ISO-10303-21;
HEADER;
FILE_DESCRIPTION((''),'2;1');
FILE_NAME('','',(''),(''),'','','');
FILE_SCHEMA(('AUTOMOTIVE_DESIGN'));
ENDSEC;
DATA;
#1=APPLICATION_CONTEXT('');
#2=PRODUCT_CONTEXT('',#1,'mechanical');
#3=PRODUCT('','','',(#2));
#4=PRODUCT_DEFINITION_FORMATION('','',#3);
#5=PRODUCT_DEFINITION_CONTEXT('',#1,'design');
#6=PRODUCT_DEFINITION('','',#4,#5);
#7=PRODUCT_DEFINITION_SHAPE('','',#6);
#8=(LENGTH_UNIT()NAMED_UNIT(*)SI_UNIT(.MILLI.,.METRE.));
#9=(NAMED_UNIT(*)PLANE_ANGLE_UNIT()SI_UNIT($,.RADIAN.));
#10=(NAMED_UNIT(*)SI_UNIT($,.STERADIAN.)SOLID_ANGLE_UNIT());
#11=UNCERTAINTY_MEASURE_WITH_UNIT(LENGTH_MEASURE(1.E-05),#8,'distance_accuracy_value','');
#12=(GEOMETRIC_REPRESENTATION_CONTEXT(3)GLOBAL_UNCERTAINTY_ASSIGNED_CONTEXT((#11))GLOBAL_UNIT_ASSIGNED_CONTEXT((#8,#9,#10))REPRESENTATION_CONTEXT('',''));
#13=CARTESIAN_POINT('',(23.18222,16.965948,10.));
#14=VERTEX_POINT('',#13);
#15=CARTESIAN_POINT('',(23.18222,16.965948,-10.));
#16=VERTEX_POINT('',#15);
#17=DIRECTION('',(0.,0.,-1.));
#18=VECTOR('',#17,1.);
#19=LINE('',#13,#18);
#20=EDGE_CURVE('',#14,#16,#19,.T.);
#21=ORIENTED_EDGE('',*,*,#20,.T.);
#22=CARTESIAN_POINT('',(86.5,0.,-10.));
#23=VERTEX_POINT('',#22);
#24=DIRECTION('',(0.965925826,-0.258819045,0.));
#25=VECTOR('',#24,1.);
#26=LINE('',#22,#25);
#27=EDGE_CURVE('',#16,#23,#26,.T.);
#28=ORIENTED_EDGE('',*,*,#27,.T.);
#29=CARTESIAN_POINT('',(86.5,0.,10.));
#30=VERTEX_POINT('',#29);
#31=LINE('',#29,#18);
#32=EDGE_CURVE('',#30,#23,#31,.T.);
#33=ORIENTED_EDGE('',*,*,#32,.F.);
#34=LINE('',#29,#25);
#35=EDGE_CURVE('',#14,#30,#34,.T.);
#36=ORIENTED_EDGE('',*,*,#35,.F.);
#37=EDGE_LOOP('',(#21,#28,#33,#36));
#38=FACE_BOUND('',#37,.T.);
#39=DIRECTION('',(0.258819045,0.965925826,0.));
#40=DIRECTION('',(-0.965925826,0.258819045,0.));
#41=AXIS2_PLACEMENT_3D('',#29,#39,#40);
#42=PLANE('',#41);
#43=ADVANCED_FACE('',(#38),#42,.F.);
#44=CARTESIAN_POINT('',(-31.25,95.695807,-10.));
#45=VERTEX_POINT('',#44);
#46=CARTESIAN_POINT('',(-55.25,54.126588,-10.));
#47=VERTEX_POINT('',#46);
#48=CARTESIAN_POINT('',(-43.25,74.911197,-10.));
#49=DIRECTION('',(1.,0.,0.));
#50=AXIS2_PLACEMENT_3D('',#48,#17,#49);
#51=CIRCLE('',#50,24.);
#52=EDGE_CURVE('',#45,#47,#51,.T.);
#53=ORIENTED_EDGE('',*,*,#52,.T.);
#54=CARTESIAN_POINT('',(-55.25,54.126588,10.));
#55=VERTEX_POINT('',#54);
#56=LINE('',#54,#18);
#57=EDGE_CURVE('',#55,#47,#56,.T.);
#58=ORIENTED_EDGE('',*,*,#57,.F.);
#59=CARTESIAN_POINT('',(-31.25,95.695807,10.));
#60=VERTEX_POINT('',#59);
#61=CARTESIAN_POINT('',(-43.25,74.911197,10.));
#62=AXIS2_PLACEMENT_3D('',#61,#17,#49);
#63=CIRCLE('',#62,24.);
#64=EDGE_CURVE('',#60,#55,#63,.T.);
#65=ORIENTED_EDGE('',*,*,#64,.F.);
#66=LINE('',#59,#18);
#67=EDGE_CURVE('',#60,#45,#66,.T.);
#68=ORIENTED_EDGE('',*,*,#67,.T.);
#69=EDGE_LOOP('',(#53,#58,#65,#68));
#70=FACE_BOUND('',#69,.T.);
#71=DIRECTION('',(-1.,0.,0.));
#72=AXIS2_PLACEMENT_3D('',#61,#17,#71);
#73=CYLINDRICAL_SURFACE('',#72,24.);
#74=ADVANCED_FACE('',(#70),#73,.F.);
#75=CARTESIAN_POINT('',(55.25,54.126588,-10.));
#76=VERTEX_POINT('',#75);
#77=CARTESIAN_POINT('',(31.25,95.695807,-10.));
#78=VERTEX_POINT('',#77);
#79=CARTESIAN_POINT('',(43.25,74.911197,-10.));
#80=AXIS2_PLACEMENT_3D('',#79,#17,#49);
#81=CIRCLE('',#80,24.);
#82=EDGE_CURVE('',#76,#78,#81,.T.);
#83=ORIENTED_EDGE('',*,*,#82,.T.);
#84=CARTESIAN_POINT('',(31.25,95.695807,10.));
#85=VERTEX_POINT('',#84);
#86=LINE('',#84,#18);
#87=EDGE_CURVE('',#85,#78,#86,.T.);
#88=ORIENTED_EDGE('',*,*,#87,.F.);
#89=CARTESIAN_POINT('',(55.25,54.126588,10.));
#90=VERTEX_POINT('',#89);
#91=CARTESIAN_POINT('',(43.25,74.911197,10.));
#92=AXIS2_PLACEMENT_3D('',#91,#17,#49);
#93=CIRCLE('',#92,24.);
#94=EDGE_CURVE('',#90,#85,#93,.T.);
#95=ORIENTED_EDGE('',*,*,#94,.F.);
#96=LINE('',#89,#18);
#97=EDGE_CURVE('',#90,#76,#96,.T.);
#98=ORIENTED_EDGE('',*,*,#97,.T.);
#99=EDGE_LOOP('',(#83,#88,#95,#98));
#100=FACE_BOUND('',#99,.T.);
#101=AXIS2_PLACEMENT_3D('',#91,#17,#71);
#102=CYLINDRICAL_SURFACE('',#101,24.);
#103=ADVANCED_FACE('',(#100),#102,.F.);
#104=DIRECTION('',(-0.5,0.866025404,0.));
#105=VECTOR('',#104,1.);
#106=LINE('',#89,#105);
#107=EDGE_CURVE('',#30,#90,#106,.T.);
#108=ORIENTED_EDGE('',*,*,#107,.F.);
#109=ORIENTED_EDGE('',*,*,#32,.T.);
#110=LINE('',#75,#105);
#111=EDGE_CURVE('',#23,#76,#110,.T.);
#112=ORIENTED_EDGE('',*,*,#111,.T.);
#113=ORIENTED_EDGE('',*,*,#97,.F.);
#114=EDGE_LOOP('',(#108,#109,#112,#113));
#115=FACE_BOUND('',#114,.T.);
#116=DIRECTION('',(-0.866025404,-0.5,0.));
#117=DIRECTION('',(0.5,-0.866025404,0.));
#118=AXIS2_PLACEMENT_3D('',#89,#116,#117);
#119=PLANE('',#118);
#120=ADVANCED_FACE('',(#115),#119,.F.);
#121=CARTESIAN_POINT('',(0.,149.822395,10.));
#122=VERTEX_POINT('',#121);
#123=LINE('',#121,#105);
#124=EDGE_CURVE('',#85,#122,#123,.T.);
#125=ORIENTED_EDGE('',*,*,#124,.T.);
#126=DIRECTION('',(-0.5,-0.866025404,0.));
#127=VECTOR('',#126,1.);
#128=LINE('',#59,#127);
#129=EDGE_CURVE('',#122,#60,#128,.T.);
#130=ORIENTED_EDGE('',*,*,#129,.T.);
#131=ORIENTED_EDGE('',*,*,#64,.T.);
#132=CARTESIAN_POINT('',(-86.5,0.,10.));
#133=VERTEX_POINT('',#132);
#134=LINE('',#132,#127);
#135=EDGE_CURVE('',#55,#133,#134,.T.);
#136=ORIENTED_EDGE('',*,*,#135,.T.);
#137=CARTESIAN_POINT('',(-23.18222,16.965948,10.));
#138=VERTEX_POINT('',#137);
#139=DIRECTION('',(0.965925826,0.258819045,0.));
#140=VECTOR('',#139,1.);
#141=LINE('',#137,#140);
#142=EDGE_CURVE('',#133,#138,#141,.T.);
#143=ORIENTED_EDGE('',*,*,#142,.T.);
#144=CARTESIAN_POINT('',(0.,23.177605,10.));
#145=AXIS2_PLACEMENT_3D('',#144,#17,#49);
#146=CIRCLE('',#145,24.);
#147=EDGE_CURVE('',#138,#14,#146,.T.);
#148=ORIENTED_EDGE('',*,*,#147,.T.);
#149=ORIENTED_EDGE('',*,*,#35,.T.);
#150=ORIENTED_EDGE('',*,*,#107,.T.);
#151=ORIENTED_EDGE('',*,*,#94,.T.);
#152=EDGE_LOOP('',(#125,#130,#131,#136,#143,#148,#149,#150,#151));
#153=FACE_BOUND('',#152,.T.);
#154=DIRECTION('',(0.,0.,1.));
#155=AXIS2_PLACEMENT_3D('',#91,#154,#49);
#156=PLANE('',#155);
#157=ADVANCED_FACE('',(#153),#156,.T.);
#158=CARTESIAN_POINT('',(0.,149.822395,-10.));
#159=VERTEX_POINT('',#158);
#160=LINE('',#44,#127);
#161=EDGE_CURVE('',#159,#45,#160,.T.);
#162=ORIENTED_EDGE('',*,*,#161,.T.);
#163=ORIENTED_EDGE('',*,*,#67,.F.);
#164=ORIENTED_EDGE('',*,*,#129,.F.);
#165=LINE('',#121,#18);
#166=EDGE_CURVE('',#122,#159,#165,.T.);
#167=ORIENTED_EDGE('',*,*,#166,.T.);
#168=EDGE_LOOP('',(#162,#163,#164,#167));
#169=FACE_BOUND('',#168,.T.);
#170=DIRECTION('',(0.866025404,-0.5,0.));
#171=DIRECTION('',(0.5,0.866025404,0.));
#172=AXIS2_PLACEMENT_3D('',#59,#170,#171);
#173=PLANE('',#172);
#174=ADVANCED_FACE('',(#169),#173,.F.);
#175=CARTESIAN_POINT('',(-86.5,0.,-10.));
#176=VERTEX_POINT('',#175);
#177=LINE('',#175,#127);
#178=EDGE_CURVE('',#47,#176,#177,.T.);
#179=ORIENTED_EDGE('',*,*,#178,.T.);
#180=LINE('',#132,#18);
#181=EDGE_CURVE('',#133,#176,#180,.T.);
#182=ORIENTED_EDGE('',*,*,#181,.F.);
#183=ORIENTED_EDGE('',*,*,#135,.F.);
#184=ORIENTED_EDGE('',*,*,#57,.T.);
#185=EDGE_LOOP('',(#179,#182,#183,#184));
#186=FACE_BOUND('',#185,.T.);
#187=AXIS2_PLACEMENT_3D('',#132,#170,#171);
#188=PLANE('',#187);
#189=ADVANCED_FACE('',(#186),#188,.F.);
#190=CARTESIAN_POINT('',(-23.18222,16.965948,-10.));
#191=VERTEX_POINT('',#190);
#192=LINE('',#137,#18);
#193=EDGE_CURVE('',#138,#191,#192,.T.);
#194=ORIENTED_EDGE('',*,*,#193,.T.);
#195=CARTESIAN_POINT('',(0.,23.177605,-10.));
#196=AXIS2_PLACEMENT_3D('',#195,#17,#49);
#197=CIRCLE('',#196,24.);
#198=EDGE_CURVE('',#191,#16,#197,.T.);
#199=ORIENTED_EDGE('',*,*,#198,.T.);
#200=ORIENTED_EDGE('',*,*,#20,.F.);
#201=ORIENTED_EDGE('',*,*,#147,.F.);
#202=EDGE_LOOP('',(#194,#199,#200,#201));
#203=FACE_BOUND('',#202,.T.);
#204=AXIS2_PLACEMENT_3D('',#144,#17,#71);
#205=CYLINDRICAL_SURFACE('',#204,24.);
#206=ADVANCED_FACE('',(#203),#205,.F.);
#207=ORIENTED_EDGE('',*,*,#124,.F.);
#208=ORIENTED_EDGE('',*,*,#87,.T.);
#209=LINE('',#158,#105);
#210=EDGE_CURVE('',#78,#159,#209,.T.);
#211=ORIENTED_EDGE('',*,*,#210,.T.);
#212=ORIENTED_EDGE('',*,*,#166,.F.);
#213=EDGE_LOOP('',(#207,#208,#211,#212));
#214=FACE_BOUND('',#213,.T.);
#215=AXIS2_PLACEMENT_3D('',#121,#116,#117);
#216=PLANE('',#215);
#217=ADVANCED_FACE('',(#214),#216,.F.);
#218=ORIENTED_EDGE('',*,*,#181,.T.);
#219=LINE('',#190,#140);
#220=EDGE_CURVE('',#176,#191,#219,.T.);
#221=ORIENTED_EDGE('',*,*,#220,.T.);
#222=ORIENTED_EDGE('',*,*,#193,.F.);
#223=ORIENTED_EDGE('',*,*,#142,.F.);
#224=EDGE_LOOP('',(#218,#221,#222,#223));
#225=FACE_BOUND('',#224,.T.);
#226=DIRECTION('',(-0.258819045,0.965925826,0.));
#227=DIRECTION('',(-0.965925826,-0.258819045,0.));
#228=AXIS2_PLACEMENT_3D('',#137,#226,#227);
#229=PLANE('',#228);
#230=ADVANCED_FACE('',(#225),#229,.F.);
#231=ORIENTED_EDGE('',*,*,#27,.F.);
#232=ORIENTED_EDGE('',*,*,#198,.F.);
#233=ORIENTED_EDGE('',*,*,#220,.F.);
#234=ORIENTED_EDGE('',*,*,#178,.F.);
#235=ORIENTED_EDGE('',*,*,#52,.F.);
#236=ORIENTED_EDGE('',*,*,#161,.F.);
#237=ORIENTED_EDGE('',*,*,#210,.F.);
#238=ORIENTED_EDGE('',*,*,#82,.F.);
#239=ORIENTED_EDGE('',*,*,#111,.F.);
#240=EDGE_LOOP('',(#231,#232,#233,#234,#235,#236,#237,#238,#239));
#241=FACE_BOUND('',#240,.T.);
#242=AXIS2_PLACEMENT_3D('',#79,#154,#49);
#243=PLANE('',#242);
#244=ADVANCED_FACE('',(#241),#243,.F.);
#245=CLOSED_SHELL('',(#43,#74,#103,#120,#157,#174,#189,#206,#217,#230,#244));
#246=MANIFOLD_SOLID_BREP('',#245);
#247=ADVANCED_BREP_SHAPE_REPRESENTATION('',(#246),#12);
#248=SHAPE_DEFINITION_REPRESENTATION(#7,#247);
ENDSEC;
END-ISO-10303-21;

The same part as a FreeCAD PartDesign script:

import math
import FreeCAD as App
import Part
import Sketcher
Q = App.Units.Quantity

doc = App.newDocument("Part")
body = doc.addObject("PartDesign::Body", "Body")

sketch1 = body.newObject("Sketcher::SketchObject", "Sketch")
sketch1.AttachmentSupport = (doc.getObject("XY_Plane"), [""])
sketch1.MapMode = "FlatFace"
sketch1.addGeometry([
    Part.LineSegment(App.Vector(31.25, 95.695807, 0), App.Vector(0, 149.822395, 0)),
    Part.LineSegment(App.Vector(0, 149.822395, 0), App.Vector(-31.25, 95.695807, 0)),
    Part.ArcOfCircle(Part.Circle(App.Vector(-43.25, 74.911197, 0), App.Vector(0, 0, 1), 24), math.radians(-120), math.radians(60)),
    Part.LineSegment(App.Vector(-55.25, 54.126588, 0), App.Vector(-86.5, 0, 0)),
    Part.LineSegment(App.Vector(-86.5, 0, 0), App.Vector(-23.18222, 16.965948, 0)),
    Part.ArcOfCircle(Part.Circle(App.Vector(0, 23.177605, 0), App.Vector(0, 0, 1), 24), math.radians(-15), math.radians(195)),
    Part.LineSegment(App.Vector(23.18222, 16.965948, 0), App.Vector(86.5, 0, 0)),
    Part.LineSegment(App.Vector(86.5, 0, 0), App.Vector(55.25, 54.126588, 0)),
    Part.ArcOfCircle(Part.Circle(App.Vector(43.25, 74.911197, 0), App.Vector(0, 0, 1), 24), math.radians(120), math.radians(300)),
], False)
sketch1.addConstraint([
    Sketcher.Constraint("Coincident", 0, 2, 1, 1),
    Sketcher.Constraint("Coincident", 1, 2, 2, 2),
    Sketcher.Constraint("Coincident", 2, 1, 3, 1),
    Sketcher.Constraint("Coincident", 3, 2, 4, 1),
    Sketcher.Constraint("Coincident", 4, 2, 5, 2),
    Sketcher.Constraint("Coincident", 5, 1, 6, 1),
    Sketcher.Constraint("Coincident", 6, 2, 7, 1),
    Sketcher.Constraint("Coincident", 7, 2, 8, 2),
    Sketcher.Constraint("Coincident", 8, 1, 0, 1),
    Sketcher.Constraint("Equal", 2, 5),
    Sketcher.Constraint("Equal", 5, 8),
    Sketcher.Constraint("Symmetric", 3, 2, 6, 2, -1, 1),
    Sketcher.Constraint("Symmetric", 2, 3, 8, 3, -2),
    Sketcher.Constraint("Symmetric", 4, 2, 5, 1, -2),
    Sketcher.Constraint("PointOnObject", 0, 2, -2),
    Sketcher.Constraint("PointOnObject", 3, 2, -1),
    Sketcher.Constraint("Parallel", 1, 3),
    Sketcher.Constraint("Parallel", 0, 7),
    Sketcher.Constraint("Horizontal", 2, 1, 7, 2),
    Sketcher.Constraint("Equal", 1, 3),
    Sketcher.Constraint("Radius", 2, Q("24 mm")),
    Sketcher.Constraint("Angle", 0, Q("120 deg")),
    Sketcher.Constraint("Angle", 4, Q("15 deg")),
    Sketcher.Constraint("DistanceX", 2, 3, 1, 2, Q("12 mm")),
    Sketcher.Constraint("DistanceX", 2, 1, 2, 3, Q("12 mm")),
    Sketcher.Constraint("Distance", 0, Q("62.5 mm")),
    Sketcher.Constraint("DistanceY", 5, 3, 1, 2, Q("72.518202 mm")),
])
pad1 = body.newObject("PartDesign::Pad", "Pad")
pad1.Profile = sketch1
pad1.Length = 20
pad1.Midplane = True

doc.recompute()
